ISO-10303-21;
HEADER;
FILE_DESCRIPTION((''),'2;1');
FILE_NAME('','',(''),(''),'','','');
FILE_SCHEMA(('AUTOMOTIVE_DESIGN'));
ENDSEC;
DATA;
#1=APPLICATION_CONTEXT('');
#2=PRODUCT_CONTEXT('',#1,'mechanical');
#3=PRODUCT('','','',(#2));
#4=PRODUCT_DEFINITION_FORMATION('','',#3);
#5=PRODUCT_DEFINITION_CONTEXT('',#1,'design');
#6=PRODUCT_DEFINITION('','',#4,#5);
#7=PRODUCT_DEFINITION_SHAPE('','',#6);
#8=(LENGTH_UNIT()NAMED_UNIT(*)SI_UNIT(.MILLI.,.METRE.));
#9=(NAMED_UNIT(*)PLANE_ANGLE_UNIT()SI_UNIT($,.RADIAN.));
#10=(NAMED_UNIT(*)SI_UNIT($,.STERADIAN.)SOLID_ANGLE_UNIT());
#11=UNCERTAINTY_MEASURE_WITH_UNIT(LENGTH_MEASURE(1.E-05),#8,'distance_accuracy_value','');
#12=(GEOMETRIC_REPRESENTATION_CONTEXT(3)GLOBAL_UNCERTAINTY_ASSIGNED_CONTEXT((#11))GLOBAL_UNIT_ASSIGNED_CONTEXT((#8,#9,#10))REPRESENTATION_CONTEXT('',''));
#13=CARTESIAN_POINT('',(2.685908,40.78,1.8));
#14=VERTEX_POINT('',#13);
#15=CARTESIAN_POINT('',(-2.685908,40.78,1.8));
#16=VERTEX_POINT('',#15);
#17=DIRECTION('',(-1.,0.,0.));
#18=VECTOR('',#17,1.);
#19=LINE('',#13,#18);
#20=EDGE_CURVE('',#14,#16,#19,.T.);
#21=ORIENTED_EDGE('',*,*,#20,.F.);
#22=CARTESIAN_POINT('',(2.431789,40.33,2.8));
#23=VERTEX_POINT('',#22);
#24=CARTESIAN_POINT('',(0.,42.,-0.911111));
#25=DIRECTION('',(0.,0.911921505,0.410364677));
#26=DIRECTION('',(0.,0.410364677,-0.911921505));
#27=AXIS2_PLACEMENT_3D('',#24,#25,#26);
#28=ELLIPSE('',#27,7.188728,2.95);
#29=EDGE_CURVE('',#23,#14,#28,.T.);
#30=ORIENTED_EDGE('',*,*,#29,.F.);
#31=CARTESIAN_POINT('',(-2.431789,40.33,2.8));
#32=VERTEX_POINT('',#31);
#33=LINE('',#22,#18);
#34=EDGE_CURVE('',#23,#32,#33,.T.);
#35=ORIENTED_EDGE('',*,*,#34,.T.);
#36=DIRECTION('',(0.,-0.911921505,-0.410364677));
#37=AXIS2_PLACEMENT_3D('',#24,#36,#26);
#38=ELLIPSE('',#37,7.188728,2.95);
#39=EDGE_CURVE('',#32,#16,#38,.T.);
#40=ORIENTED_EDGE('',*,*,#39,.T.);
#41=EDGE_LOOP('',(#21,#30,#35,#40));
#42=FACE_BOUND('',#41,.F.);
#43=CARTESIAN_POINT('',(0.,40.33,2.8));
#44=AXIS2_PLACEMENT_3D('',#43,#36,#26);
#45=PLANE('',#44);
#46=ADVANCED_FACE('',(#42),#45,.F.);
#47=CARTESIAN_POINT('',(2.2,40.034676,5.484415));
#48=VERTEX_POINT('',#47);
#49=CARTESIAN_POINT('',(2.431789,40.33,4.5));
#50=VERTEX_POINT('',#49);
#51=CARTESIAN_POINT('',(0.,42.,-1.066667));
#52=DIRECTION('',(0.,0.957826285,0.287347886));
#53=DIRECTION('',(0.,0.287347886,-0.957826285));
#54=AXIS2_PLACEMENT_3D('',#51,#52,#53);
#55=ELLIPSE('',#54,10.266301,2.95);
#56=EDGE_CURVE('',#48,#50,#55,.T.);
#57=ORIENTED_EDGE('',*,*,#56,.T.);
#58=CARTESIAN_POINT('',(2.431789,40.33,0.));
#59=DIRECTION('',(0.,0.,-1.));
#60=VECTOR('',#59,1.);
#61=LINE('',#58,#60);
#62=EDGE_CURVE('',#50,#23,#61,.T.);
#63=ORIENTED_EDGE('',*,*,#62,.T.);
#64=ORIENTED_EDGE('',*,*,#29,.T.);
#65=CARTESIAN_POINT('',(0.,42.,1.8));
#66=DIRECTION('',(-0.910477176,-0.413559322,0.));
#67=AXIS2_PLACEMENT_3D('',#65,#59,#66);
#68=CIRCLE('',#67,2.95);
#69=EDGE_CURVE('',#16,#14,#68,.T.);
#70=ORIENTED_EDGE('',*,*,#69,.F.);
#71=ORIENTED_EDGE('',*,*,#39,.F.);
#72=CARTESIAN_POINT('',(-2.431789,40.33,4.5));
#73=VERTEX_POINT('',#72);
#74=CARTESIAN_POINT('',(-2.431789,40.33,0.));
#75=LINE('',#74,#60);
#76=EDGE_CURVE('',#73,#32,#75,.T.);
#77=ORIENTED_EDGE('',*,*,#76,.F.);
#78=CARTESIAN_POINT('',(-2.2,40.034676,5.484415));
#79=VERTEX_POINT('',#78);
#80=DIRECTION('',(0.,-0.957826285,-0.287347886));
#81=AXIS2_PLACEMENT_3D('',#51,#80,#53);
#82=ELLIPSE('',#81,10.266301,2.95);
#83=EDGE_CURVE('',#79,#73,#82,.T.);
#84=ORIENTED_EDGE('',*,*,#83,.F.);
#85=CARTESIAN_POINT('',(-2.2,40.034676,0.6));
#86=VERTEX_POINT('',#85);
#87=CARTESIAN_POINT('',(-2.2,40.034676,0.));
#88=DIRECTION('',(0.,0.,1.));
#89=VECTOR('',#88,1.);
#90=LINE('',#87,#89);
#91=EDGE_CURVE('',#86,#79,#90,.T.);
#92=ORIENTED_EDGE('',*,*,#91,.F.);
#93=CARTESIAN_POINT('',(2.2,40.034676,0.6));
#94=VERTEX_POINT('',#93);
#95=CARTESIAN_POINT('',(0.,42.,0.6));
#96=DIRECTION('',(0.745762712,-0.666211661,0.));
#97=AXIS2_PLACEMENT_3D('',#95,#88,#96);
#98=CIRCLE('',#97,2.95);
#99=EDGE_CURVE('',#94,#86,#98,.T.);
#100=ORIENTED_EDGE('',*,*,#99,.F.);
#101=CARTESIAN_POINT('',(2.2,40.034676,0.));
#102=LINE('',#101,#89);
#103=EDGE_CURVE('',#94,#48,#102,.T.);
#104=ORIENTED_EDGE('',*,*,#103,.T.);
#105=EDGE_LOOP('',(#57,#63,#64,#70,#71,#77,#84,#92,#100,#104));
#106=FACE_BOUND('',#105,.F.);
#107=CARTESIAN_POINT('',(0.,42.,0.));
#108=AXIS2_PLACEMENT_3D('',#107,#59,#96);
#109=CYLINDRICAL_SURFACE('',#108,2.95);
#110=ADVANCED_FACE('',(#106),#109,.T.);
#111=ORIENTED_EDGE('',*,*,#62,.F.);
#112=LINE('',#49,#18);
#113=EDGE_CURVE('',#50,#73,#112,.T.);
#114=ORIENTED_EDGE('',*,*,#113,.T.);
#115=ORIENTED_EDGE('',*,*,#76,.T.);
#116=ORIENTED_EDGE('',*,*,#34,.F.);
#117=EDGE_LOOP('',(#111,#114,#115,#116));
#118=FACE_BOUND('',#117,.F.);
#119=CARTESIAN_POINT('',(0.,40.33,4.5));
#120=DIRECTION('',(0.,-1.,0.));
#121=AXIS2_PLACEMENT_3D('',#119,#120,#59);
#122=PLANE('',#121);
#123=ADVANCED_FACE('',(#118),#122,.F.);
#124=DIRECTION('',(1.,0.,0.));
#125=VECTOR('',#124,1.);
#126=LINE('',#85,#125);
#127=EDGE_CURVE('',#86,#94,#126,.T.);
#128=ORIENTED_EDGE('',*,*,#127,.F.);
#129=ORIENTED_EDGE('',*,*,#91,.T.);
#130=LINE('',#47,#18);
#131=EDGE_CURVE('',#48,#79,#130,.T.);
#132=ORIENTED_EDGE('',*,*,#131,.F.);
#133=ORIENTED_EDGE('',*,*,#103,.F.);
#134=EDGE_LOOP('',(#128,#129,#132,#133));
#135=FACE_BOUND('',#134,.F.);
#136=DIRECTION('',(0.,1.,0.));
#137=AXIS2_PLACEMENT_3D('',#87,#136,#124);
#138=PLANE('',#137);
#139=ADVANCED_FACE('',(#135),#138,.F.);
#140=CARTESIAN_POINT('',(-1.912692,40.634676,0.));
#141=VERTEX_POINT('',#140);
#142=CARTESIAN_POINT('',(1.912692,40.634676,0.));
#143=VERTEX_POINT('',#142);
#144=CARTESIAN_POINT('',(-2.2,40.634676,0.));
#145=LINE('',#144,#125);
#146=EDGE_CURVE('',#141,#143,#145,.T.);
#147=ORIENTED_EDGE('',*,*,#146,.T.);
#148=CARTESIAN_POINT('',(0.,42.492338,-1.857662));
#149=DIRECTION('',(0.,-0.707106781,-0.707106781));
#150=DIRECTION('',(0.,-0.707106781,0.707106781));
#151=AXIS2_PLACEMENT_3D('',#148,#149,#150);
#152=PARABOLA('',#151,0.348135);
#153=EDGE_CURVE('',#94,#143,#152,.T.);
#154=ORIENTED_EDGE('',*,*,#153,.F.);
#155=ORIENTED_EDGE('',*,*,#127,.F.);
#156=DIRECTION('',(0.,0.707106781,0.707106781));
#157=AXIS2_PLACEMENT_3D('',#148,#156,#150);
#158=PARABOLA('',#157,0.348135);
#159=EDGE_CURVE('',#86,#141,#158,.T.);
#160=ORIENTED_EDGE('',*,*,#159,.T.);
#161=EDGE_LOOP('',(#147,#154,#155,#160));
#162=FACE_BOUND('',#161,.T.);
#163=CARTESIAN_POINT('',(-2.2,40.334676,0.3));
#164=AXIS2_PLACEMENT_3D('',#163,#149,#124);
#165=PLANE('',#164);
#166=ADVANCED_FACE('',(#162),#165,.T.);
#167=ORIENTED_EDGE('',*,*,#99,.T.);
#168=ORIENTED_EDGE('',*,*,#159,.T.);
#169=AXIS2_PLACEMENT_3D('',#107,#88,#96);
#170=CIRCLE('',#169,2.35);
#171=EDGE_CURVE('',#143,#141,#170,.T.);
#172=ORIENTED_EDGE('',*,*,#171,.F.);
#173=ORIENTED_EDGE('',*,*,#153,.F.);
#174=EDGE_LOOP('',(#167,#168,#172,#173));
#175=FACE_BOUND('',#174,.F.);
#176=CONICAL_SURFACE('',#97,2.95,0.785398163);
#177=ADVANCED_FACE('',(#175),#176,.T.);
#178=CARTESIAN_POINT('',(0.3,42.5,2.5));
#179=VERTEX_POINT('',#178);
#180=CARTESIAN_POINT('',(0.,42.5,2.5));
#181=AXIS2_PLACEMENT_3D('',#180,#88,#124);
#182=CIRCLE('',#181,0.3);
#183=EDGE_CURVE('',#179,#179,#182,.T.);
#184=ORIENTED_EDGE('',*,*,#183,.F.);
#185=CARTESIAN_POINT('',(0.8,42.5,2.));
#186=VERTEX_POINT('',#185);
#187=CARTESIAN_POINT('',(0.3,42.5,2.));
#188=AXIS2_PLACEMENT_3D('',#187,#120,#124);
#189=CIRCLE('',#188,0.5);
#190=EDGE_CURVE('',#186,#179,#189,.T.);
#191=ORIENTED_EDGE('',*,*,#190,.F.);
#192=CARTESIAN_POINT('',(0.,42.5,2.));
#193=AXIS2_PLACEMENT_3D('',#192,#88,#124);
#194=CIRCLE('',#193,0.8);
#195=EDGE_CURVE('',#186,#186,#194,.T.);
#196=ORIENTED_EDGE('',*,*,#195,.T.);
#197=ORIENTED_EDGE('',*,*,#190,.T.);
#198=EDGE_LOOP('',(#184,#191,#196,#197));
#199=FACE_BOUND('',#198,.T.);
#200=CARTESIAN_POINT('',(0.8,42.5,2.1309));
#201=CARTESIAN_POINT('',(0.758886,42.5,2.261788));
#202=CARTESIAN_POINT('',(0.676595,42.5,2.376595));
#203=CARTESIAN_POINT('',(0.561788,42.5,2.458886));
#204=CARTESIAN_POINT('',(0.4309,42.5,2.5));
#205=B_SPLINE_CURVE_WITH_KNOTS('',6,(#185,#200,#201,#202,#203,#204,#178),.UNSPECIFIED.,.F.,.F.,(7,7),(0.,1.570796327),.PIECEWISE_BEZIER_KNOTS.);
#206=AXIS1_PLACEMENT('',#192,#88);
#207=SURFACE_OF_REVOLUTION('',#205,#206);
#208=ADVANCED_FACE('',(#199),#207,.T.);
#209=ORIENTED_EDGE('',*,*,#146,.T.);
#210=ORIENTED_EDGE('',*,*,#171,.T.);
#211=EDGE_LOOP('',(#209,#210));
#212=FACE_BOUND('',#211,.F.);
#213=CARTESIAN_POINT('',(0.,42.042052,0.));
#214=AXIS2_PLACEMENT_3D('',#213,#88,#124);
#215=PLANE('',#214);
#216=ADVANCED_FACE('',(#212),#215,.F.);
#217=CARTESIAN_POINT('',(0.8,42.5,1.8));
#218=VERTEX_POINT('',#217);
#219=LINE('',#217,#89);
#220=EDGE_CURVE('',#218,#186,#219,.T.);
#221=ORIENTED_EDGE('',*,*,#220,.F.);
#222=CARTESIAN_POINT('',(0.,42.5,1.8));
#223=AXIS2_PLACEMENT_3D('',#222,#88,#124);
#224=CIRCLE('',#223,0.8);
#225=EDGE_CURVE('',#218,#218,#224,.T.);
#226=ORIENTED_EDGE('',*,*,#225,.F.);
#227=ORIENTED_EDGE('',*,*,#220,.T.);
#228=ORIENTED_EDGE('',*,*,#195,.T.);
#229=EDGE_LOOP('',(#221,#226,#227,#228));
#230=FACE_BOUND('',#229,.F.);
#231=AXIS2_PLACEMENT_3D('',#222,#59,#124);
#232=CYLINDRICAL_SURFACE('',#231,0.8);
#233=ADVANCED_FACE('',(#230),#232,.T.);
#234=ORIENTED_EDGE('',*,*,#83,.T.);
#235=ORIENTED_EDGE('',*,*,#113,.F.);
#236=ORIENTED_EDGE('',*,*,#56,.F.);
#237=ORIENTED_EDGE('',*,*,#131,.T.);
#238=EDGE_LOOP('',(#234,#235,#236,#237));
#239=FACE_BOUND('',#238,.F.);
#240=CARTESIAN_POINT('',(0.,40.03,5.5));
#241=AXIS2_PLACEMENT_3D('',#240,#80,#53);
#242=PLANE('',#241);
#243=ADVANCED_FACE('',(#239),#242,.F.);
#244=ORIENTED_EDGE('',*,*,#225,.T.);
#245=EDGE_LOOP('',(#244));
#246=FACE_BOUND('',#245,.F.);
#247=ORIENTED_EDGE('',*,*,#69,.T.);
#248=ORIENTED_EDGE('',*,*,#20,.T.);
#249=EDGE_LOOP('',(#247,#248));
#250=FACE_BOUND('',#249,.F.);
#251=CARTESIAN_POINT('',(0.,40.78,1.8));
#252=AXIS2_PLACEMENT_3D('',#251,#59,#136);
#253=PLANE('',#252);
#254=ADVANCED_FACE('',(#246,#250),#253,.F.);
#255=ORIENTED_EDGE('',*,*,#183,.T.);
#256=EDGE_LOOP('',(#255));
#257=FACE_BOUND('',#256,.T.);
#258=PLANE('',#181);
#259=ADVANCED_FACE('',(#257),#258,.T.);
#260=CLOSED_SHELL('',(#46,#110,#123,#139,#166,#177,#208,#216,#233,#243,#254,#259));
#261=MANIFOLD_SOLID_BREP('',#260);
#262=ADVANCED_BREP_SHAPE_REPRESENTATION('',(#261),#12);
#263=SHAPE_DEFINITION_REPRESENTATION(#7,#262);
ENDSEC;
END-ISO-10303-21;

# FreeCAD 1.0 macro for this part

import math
import FreeCAD as App
import Part
import Sketcher
from FreeCAD import Vector
Q = App.Units.Quantity


def edges_at(feature, points):
    """Names of the edges that pass closest to the given points."""
    edges = feature.Shape.Edges
    near = lambda p: min(range(len(edges)), key=lambda i: edges[i].distToShape(Part.Vertex(*p))[0])
    return sorted({f"Edge{near(p) + 1}" for p in points})


def add_polygon(sketch, points):
    """Adds a closed chain of lines whose ends are joined by coincident constraints."""
    first, n = sketch.GeometryCount, len(points)
    for a, b in zip(points, points[1:] + points[:1]):
        sketch.addGeometry(Part.LineSegment(App.Vector(*a, 0), App.Vector(*b, 0)), False)
    for i in range(n):
        sketch.addConstraint(Sketcher.Constraint("Coincident", first + i, 2, first + (i + 1) % n, 1))

doc = App.newDocument("Part")
body = doc.addObject("PartDesign::Body", "Body")

# Sketch on XY plane
sketch1 = body.newObject("Sketcher::SketchObject", "Sketch")
sketch1.AttachmentSupport = (doc.getObject("XY_Plane"), [""])
sketch1.MapMode = "FlatFace"
sketch1.addGeometry([
    Part.ArcOfCircle(Part.Circle(Vector(0, 0, 0), Vector(0, 0, 1), 3), math.radians(-42), math.radians(222)),
    Part.LineSegment(Vector(-2.2, -2, 0), Vector(2.2, -2, 0)),
], False)
sketch1.addConstraint([
    Sketcher.Constraint("Coincident", 0, 1, 1, 2),
    Sketcher.Constraint("Coincident", 1, 1, 0, 2),
    Sketcher.Constraint("Horizontal", 1),
    Sketcher.Constraint("Coincident", 0, 3, -1, 1),
    Sketcher.Constraint("Radius", 0, Q("2.95 mm")),
    Sketcher.Constraint("DistanceX", 1, 1, 1, 2, Q("4.4 mm")),
])
pad1 = body.newObject("PartDesign::Pad", "Pad")
pad1.Profile = sketch1
pad1.Length = 5.5

# Sketch on YZ plane
sketch2 = body.newObject("Sketcher::SketchObject", "Sketch001")
sketch2.AttachmentSupport = (doc.getObject("YZ_Plane"), [""])
sketch2.MapMode = "FlatFace"
add_polygon(sketch2, [(-2, 5.5), (-1.7, 4.5), (-1.7, 2.8), (-1.2, 1.8), (4, 1.8), (4, 5.5)])  # lines 0-5
sketch2.addConstraint([
    Sketcher.Constraint("Vertical", 1),
    Sketcher.Constraint("Horizontal", 3),
    Sketcher.Constraint("Vertical", 4),
    Sketcher.Constraint("Horizontal", 5),
    Sketcher.Constraint("DistanceY", 1, 2, 1, 1, Q("1.7 mm")),
    Sketcher.Constraint("DistanceY", 4, 1, 4, 2, Q("3.7 mm")),
    Sketcher.Constraint("DistanceX", -1, 1, 3, 2, Q("4 mm")),
    Sketcher.Constraint("DistanceY", 2, 2, 1, 2, Q("1 mm")),
    Sketcher.Constraint("DistanceX", 3, 1, 3, 2, Q("5.22 mm")),
    Sketcher.Constraint("DistanceX", 5, 2, 5, 1, Q("5.97 mm")),
    Sketcher.Constraint("DistanceY", -1, 1, 0, 2, Q("4.5 mm")),
    Sketcher.Constraint("DistanceX", 5, 2, 0, 2, Q("0.3 mm")),
])
pocket1 = body.newObject("PartDesign::Pocket", "Pocket")
pocket1.Profile = sketch2
pocket1.Type = "ThroughAll"
pocket1.Midplane = True

# Sketch on XY plane
sketch3 = body.newObject("Sketcher::SketchObject", "Sketch002")
sketch3.AttachmentSupport = (doc.getObject("XY_Plane"), [""])
sketch3.MapMode = "FlatFace"
sketch3.AttachmentOffset = App.Placement(Vector(0, 0, 1.8), App.Rotation())
sketch3.addGeometry(Part.Circle(Vector(0, 0.5, 0), Vector(0, 0, 1), 0.8), False)
sketch3.addConstraint([
    Sketcher.Constraint("PointOnObject", 0, 3, -2),
    Sketcher.Constraint("Diameter", 0, Q("1.6 mm")),
    Sketcher.Constraint("DistanceY", -1, 1, 0, 3, Q("0.5 mm")),
])
pad2 = body.newObject("PartDesign::Pad", "Pad001")
pad2.Profile = sketch3
pad2.Length = 0.7
doc.recompute()

fillet = body.newObject("PartDesign::Fillet", "Fillet")
fillet.Base = (pad2, edges_at(pad2, [(-0.8, 0.5, 2.5)]))
fillet.Radius = 0.5
doc.recompute()

chamfer = body.newObject("PartDesign::Chamfer", "Chamfer")
chamfer.Base = (fillet, edges_at(fillet, [(0, 2.95, 0), (0, -1.965, 0)]))
chamfer.Size = 0.6
body2 = doc.addObject("PartDesign::Body", "Body001")
doc.recompute()

body.Placement = App.Placement(Vector(0, 42, 0), App.Rotation(Vector(0, 0, 1), 0))
boolean = body2.newObject("PartDesign::Boolean", "Boolean")
boolean.Type = "Fuse"
boolean.addObjects([body])

doc.recompute()
